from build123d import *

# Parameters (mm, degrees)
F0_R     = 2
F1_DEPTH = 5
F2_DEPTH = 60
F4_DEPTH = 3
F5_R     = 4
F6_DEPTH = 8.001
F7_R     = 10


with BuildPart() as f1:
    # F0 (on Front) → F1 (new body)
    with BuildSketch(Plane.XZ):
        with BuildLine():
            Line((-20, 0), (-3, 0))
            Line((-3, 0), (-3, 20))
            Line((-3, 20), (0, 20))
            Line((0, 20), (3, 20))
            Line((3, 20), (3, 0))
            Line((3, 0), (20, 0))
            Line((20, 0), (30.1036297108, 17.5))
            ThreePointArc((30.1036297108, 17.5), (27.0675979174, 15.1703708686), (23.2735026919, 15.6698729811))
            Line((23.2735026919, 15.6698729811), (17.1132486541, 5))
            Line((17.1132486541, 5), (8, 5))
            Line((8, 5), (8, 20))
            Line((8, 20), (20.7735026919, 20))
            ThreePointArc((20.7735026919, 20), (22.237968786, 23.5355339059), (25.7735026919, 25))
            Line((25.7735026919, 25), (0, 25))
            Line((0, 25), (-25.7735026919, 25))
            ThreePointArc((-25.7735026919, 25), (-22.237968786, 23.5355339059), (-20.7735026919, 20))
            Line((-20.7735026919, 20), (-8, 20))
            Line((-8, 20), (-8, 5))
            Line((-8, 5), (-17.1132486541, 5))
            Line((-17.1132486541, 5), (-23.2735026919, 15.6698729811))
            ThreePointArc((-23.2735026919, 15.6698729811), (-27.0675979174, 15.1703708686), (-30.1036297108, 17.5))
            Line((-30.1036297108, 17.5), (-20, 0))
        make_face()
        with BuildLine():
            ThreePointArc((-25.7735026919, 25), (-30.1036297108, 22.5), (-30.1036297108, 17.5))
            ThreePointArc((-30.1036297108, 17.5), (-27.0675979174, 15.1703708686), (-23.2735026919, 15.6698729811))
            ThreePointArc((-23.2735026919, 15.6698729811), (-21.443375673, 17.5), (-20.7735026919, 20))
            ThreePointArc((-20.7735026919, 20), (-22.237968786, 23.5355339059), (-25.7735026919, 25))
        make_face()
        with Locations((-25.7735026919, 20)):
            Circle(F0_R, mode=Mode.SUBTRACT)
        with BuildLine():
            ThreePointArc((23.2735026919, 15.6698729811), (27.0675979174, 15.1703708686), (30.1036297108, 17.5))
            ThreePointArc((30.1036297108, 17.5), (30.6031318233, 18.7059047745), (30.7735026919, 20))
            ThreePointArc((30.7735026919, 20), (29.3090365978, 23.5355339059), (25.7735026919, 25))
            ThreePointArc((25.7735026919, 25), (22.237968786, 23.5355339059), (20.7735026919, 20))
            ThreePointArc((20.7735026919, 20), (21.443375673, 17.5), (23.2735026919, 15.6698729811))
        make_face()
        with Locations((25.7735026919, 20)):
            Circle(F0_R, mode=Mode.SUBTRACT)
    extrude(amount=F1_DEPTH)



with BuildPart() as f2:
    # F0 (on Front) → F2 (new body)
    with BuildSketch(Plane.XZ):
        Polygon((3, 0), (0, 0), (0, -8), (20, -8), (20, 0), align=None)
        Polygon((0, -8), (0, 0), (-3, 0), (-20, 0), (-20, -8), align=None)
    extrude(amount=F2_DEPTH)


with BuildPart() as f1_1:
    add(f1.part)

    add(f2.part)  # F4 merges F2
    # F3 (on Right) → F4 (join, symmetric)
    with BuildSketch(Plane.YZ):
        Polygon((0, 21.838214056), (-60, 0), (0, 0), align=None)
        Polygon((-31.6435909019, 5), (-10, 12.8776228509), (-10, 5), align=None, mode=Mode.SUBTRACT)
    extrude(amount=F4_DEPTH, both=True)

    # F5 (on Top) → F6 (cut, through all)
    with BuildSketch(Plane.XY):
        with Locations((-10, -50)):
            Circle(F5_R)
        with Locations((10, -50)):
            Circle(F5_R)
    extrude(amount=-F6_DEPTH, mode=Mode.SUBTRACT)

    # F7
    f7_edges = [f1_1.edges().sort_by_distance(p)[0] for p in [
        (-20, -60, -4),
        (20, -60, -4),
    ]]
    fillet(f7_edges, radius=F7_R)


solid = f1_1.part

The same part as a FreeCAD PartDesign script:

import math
import FreeCAD as App
import Part
import Sketcher
from FreeCAD import Vector
Q = App.Units.Quantity


def edges_at(feature, points):
    """Names of the edges that pass closest to the given points."""
    edges = feature.Shape.Edges
    near = lambda p: min(range(len(edges)), key=lambda i: edges[i].distToShape(Part.Vertex(*p))[0])
    return sorted({f"Edge{near(p) + 1}" for p in points})


def add_polygon(sketch, points):
    """Adds a closed chain of lines whose ends are joined by coincident constraints."""
    first, n = sketch.GeometryCount, len(points)
    for a, b in zip(points, points[1:] + points[:1]):
        sketch.addGeometry(Part.LineSegment(App.Vector(*a, 0), App.Vector(*b, 0)), False)
    for i in range(n):
        sketch.addConstraint(Sketcher.Constraint("Coincident", first + i, 2, first + (i + 1) % n, 1))

doc = App.newDocument("Part")
params = doc.addObject("Spreadsheet::Sheet", "Params")
for row, (alias, value) in enumerate([
    ("sketch1_diameter", "4 mm"),
    ("sketch1_radius", "5 mm"),
    ("sketch1_width", "17 mm"),
    ("sketch1_width2", "6 mm"),
    ("sketch1_height", "20 mm"),
    ("pad1_length", "5 mm"),
    ("sketch2_width", "40 mm"),
    ("sketch2_height", "8 mm"),
    ("pad2_length", "60 mm"),
    ("sketch3_width", "60 mm"),
    ("pad3_length", "6 mm"),
    ("sketch4_diameter", "8 mm"),
    ("fillet_radius", "10 mm"),
], start=1):
    params.set(f"A{row}", alias)
    params.set(f"B{row}", "=" + value)
    params.setAlias(f"B{row}", alias)

body = doc.addObject("PartDesign::Body", "Body")

sketch1 = body.newObject("Sketcher::SketchObject", "Sketch")
sketch1.AttachmentSupport = (doc.getObject("XZ_Plane"), [""])
sketch1.MapMode = "FlatFace"
sketch1.addGeometry([
    Part.LineSegment(Vector(-20, 0, 0), Vector(-3, 0, 0)),
    Part.LineSegment(Vector(-3, 0, 0), Vector(-3, 20, 0)),
    Part.LineSegment(Vector(-3, 20, 0), Vector(3, 20, 0)),
    Part.LineSegment(Vector(3, 20, 0), Vector(3, 0, 0)),
    Part.LineSegment(Vector(3, 0, 0), Vector(20, 0, 0)),
    Part.LineSegment(Vector(20, 0, 0), Vector(30.1, 17.5, 0)),
    Part.ArcOfCircle(Part.Circle(Vector(25.8, 20, 0), Vector(0, 0, 1), 5), math.radians(-30), math.radians(0)),
    Part.ArcOfCircle(Part.Circle(Vector(25.8, 20, 0), Vector(0, 0, 1), 5), math.radians(0), math.radians(90)),
    Part.LineSegment(Vector(25.8, 25, 0), Vector(-25.8, 25, 0)),
    Part.ArcOfCircle(Part.Circle(Vector(-25.8, 20, 0), Vector(0, 0, 1), 5), math.radians(90), math.radians(210)),
    Part.LineSegment(Vector(-30.1, 17.5, 0), Vector(-20, 0, 0)),
    Part.LineSegment(Vector(-20.8, 20, 0), Vector(-8, 20, 0)),
    Part.LineSegment(Vector(-8, 20, 0), Vector(-8, 5, 0)),
    Part.LineSegment(Vector(-8, 5, 0), Vector(-17.1, 5, 0)),
    Part.LineSegment(Vector(-17.1, 5, 0), Vector(-23.3, 15.7, 0)),
    Part.ArcOfCircle(Part.Circle(Vector(-25.8, 20, 0), Vector(0, 0, 1), 5), math.radians(-60), math.radians(0)),
    Part.LineSegment(Vector(8, 20, 0), Vector(20.8, 20, 0)),
    Part.ArcOfCircle(Part.Circle(Vector(25.8, 20, 0), Vector(0, 0, 1), 5), math.radians(180), math.radians(240)),
    Part.LineSegment(Vector(23.3, 15.7, 0), Vector(17.1, 5, 0)),
    Part.LineSegment(Vector(17.1, 5, 0), Vector(8, 5, 0)),
    Part.LineSegment(Vector(8, 5, 0), Vector(8, 20, 0)),
    Part.Circle(Vector(-25.8, 20, 0), Vector(0, 0, 1), 2),
    Part.Circle(Vector(25.8, 20, 0), Vector(0, 0, 1), 2),
], False)
sketch1.addConstraint([
    Sketcher.Constraint("Coincident", 0, 2, 1, 1),
    Sketcher.Constraint("Coincident", 1, 2, 2, 1),
    Sketcher.Constraint("Coincident", 2, 2, 3, 1),
    Sketcher.Constraint("Coincident", 3, 2, 4, 1),
    Sketcher.Constraint("Coincident", 4, 2, 5, 1),
    Sketcher.Constraint("Tangent", 5, 2, 6, 1),
    Sketcher.Constraint("Tangent", 6, 2, 7, 1),
    Sketcher.Constraint("Tangent", 7, 2, 8, 1),
    Sketcher.Constraint("Tangent", 8, 2, 9, 1),
    Sketcher.Constraint("Tangent", 9, 2, 10, 1),
    Sketcher.Constraint("Coincident", 10, 2, 0, 1),
    Sketcher.Constraint("Coincident", 11, 2, 12, 1),
    Sketcher.Constraint("Coincident", 12, 2, 13, 1),
    Sketcher.Constraint("Coincident", 13, 2, 14, 1),
    Sketcher.Constraint("Coincident", 14, 2, 15, 1),
    Sketcher.Constraint("Coincident", 15, 2, 11, 1),
    Sketcher.Constraint("Coincident", 16, 2, 17, 1),
    Sketcher.Constraint("Coincident", 17, 2, 18, 1),
    Sketcher.Constraint("Coincident", 18, 2, 19, 1),
    Sketcher.Constraint("Coincident", 19, 2, 20, 1),
    Sketcher.Constraint("Coincident", 20, 2, 16, 1),
    Sketcher.Constraint("Horizontal", 0),
    Sketcher.Constraint("Vertical", 1),
    Sketcher.Constraint("Horizontal", 2),
    Sketcher.Constraint("Vertical", 3),
    Sketcher.Constraint("Horizontal", 4),
    Sketcher.Constraint("Horizontal", 8),
    Sketcher.Constraint("Horizontal", 11),
    Sketcher.Constraint("Vertical", 12),
    Sketcher.Constraint("Horizontal", 13),
    Sketcher.Constraint("Horizontal", 16),
    Sketcher.Constraint("Horizontal", 19),
    Sketcher.Constraint("Vertical", 20),
    Sketcher.Constraint("Coincident", 15, 3, 9, 3),
    Sketcher.Constraint("Coincident", 17, 3, 6, 3),
    Sketcher.Constraint("Coincident", 21, 3, 9, 3),
    Sketcher.Constraint("Coincident", 22, 3, 6, 3),
    Sketcher.Constraint("Equal", 6, 7),
    Sketcher.Constraint("Equal", 7, 9),
    Sketcher.Constraint("Equal", 9, 15),
    Sketcher.Constraint("Equal", 15, 17),
    Sketcher.Constraint("Equal", 21, 22),
    Sketcher.Constraint("Symmetric", 0, 2, 3, 2, -1, 1),
    Sketcher.Constraint("Symmetric", 5, 2, 9, 2, -2),
    Sketcher.Constraint("Symmetric", 13, 2, 18, 2, -2),
    Sketcher.Constraint("Symmetric", 11, 2, 20, 2, -2),
    Sketcher.Constraint("PointOnObject", 0, 2, -1),
    Sketcher.Constraint("Parallel", 10, 14),
    Sketcher.Constraint("Parallel", 5, 18),
    Sketcher.Constraint("Horizontal", 22, 3, 1, 2),
    Sketcher.Constraint("Horizontal", 2, 2, 6, 2),
    Sketcher.Constraint("Horizontal", 6, 2, 11, 2),
    Sketcher.Constraint("Diameter", 21, Q("4 mm")),
    Sketcher.Constraint("Radius", 6, Q("5 mm")),
    Sketcher.Constraint("DistanceX", 0, 1, 0, 2, Q("17 mm")),
    Sketcher.Constraint("DistanceX", 2, 1, 2, 2, Q("6 mm")),
    Sketcher.Constraint("DistanceY", 1, 1, 1, 2, Q("20 mm")),
    Sketcher.Constraint("DistanceY", 12, 2, 12, 1, Q("15 mm")),
    Sketcher.Constraint("Angle", 5, Q("60 deg")),
    Sketcher.Constraint("DistanceX", 11, 2, -1, 1, Q("8 mm")),
    Sketcher.Constraint("DistanceX", 9, 3, 14, 2, Q("2.5 mm")),
])
sketch1.setExpression("Constraints[52]", "Params.sketch1_diameter")
sketch1.setExpression("Constraints[53]", "Params.sketch1_radius")
sketch1.setExpression("Constraints[54]", "Params.sketch1_width")
sketch1.setExpression("Constraints[55]", "Params.sketch1_width2")
sketch1.setExpression("Constraints[56]", "Params.sketch1_height")
pad1 = body.newObject("PartDesign::Pad", "Pad")
pad1.Profile = sketch1
pad1.setExpression("Length", "Params.pad1_length")
body2 = doc.addObject("PartDesign::Body", "Body001")

sketch2 = body2.newObject("Sketcher::SketchObject", "Sketch001")
sketch2.AttachmentSupport = (doc.getObject("XZ_Plane001"), [""])
sketch2.MapMode = "FlatFace"
add_polygon(sketch2, [(20, -8), (20, 0), (-20, 0), (-20, -8)])
sketch2.addConstraint([
    Sketcher.Constraint("Vertical", 0),
    Sketcher.Constraint("Horizontal", 1),
    Sketcher.Constraint("Vertical", 2),
    Sketcher.Constraint("Horizontal", 3),
    Sketcher.Constraint("Symmetric", 0, 2, 1, 2, -1, 1),
    Sketcher.Constraint("DistanceX", 1, 2, 1, 1, Q("40 mm")),
    Sketcher.Constraint("DistanceY", 0, 1, 0, 2, Q("8 mm")),
])
sketch2.setExpression("Constraints[9]", "Params.sketch2_width")
sketch2.setExpression("Constraints[10]", "Params.sketch2_height")
pad2 = body2.newObject("PartDesign::Pad", "Pad001")
pad2.Profile = sketch2
pad2.setExpression("Length", "Params.pad2_length")
doc.recompute()

boolean = body.newObject("PartDesign::Boolean", "Boolean")
boolean.Type = "Fuse"
boolean.addObjects([body2])

sketch3 = body.newObject("Sketcher::SketchObject", "Sketch002")
sketch3.AttachmentSupport = (doc.getObject("YZ_Plane"), [""])
sketch3.MapMode = "FlatFace"
add_polygon(sketch3, [(0, 22), (-60, 0), (0, 0)])
add_polygon(sketch3, [(-10, 5), (-32, 5), (-10, 13)])
sketch3.addConstraint([
    Sketcher.Constraint("Horizontal", 1),
    Sketcher.Constraint("Vertical", 2),
    Sketcher.Constraint("Horizontal", 3),
    Sketcher.Constraint("Vertical", 5),
    Sketcher.Constraint("Coincident", 1, 2, -1, 1),
    Sketcher.Constraint("Parallel", 0, 4),
    Sketcher.Constraint("DistanceX", 1, 1, 1, 2, Q("60 mm")),
    Sketcher.Constraint("Angle", 0, Q("-160 deg")),
    Sketcher.Constraint("DistanceY", -1, 1, 3, 2, Q("5 mm")),
    Sketcher.Constraint("DistanceX", 4, 2, -1, 1, Q("10 mm")),
    Sketcher.Constraint("DistanceX", 3, 2, 3, 1, Q("21.643591 mm")),
])
sketch3.setExpression("Constraints[12]", "Params.sketch3_width")
pad3 = body.newObject("PartDesign::Pad", "Pad002")
pad3.Profile = sketch3
pad3.setExpression("Length", "Params.pad3_length")
pad3.Midplane = True

sketch4 = body.newObject("Sketcher::SketchObject", "Sketch003")
sketch4.AttachmentSupport = (doc.getObject("XY_Plane"), [""])
sketch4.MapMode = "FlatFace"
sketch4.addGeometry([
    Part.Circle(Vector(-10, -50, 0), Vector(0, 0, 1), 4),
    Part.Circle(Vector(10, -50, 0), Vector(0, 0, 1), 4),
], False)
sketch4.addConstraint([
    Sketcher.Constraint("Equal", 0, 1),
    Sketcher.Constraint("Symmetric", 0, 3, 1, 3, -2),
    Sketcher.Constraint("Diameter", 0, Q("8 mm")),
    Sketcher.Constraint("DistanceX", 0, 3, -1, 1, Q("10 mm")),
    Sketcher.Constraint("DistanceY", 0, 3, -1, 1, Q("50 mm")),
])
sketch4.setExpression("Constraints[2]", "Params.sketch4_diameter")
pocket1 = body.newObject("PartDesign::Pocket", "Pocket")
pocket1.Profile = sketch4
pocket1.Type = "ThroughAll"
doc.recompute()

fillet = body.newObject("PartDesign::Fillet", "Fillet")
fillet.Base = (pocket1, edges_at(pocket1, [(-20, -60, -4), (20, -60, -4)]))
fillet.setExpression("Radius", "Params.fillet_radius")

doc.recompute()
